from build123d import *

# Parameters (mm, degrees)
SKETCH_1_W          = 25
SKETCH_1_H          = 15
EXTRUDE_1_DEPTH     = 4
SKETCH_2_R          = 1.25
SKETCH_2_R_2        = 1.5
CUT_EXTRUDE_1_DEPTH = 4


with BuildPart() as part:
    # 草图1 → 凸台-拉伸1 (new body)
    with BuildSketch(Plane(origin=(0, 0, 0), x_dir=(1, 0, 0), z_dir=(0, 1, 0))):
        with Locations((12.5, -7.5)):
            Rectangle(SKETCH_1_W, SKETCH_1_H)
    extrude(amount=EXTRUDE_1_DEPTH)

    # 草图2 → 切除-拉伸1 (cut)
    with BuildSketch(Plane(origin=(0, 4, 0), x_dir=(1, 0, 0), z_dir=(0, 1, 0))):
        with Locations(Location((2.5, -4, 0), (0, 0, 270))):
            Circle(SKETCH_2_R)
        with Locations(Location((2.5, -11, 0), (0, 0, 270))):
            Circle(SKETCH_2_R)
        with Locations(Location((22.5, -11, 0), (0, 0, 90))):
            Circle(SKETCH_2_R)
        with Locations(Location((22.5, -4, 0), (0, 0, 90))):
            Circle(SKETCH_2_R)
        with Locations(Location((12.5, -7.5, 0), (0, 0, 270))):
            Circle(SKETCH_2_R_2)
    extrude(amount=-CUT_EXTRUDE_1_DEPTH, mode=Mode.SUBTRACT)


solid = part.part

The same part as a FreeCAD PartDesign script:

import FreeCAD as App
import Part
import Sketcher
from FreeCAD import Vector


def add_polygon(sketch, points):
    """Adds a closed chain of lines whose ends are joined by coincident constraints."""
    first, n = sketch.GeometryCount, len(points)
    for a, b in zip(points, points[1:] + points[:1]):
        sketch.addGeometry(Part.LineSegment(App.Vector(*a, 0), App.Vector(*b, 0)), False)
    for i in range(n):
        sketch.addConstraint(Sketcher.Constraint("Coincident", first + i, 2, first + (i + 1) % n, 1))

doc = App.newDocument("Part")
body = doc.addObject("PartDesign::Body", "Body")

sketch1 = body.newObject("Sketcher::SketchObject", "Sketch")
sketch1.AttachmentSupport = (doc.getObject("XZ_Plane"), [""])
sketch1.MapMode = "FlatFace"
add_polygon(sketch1, [(0, 0), (0, 15), (25, 15), (25, 0)])
sketch1.addConstraint([
    Sketcher.Constraint("Vertical", 0),
    Sketcher.Constraint("Horizontal", 1),
    Sketcher.Constraint("Vertical", 2),
    Sketcher.Constraint("Horizontal", 3),
    Sketcher.Constraint("Coincident", 3, 2, -1, 1),
    Sketcher.Constraint("DistanceX", 1, 1, 1, 2, 25.0),
    Sketcher.Constraint("DistanceY", 0, 1, 0, 2, 15.0),
])
pad1 = body.newObject("PartDesign::Pad", "Pad")
pad1.Profile = sketch1
pad1.Length = 4
pad1.Reversed = True

sketch2 = body.newObject("Sketcher::SketchObject", "Sketch001")
sketch2.AttachmentSupport = (doc.getObject("XZ_Plane"), [""])
sketch2.MapMode = "FlatFace"
sketch2.AttachmentOffset = App.Placement(Vector(0, 0, -4), App.Rotation())
sketch2.addGeometry([
    Part.Circle(Vector(2.5, 4, 0), Vector(0, 0, 1), 1.25),
    Part.Circle(Vector(2.5, 11, 0), Vector(0, 0, 1), 1.25),
    Part.Circle(Vector(22.5, 11, 0), Vector(0, 0, 1), 1.25),
    Part.Circle(Vector(22.5, 4, 0), Vector(0, 0, 1), 1.25),
    Part.Circle(Vector(12.5, 7.5, 0), Vector(0, 0, 1), 1.5),
], False)
sketch2.addConstraint([
    Sketcher.Constraint("Equal", 0, 1),
    Sketcher.Constraint("Equal", 1, 2),
    Sketcher.Constraint("Equal", 2, 3),
    Sketcher.Constraint("Horizontal", 1, 3, 2, 3),
    Sketcher.Constraint("Horizontal", 0, 3, 3, 3),
    Sketcher.Constraint("Vertical", 0, 3, 1, 3),
    Sketcher.Constraint("Vertical", 2, 3, 3, 3),
    Sketcher.Constraint("Diameter", 4, 3.0),
    Sketcher.Constraint("Diameter", 0, 2.5),
    Sketcher.Constraint("DistanceY", -1, 1, 0, 3, 4.0),
    Sketcher.Constraint("DistanceY", -1, 1, 1, 3, 11.0),
    Sketcher.Constraint("DistanceX", 1, 3, 2, 3, 20.0),
    Sketcher.Constraint("DistanceX", 0, 3, 4, 3, 10.0),
    Sketcher.Constraint("DistanceX", -1, 1, 0, 3, 2.5),
    Sketcher.Constraint("DistanceY", -1, 1, 4, 3, 7.5),
])
pocket1 = body.newObject("PartDesign::Pocket", "Pocket")
pocket1.Profile = sketch2
pocket1.Length = 4
pocket1.Reversed = True

doc.recompute()
